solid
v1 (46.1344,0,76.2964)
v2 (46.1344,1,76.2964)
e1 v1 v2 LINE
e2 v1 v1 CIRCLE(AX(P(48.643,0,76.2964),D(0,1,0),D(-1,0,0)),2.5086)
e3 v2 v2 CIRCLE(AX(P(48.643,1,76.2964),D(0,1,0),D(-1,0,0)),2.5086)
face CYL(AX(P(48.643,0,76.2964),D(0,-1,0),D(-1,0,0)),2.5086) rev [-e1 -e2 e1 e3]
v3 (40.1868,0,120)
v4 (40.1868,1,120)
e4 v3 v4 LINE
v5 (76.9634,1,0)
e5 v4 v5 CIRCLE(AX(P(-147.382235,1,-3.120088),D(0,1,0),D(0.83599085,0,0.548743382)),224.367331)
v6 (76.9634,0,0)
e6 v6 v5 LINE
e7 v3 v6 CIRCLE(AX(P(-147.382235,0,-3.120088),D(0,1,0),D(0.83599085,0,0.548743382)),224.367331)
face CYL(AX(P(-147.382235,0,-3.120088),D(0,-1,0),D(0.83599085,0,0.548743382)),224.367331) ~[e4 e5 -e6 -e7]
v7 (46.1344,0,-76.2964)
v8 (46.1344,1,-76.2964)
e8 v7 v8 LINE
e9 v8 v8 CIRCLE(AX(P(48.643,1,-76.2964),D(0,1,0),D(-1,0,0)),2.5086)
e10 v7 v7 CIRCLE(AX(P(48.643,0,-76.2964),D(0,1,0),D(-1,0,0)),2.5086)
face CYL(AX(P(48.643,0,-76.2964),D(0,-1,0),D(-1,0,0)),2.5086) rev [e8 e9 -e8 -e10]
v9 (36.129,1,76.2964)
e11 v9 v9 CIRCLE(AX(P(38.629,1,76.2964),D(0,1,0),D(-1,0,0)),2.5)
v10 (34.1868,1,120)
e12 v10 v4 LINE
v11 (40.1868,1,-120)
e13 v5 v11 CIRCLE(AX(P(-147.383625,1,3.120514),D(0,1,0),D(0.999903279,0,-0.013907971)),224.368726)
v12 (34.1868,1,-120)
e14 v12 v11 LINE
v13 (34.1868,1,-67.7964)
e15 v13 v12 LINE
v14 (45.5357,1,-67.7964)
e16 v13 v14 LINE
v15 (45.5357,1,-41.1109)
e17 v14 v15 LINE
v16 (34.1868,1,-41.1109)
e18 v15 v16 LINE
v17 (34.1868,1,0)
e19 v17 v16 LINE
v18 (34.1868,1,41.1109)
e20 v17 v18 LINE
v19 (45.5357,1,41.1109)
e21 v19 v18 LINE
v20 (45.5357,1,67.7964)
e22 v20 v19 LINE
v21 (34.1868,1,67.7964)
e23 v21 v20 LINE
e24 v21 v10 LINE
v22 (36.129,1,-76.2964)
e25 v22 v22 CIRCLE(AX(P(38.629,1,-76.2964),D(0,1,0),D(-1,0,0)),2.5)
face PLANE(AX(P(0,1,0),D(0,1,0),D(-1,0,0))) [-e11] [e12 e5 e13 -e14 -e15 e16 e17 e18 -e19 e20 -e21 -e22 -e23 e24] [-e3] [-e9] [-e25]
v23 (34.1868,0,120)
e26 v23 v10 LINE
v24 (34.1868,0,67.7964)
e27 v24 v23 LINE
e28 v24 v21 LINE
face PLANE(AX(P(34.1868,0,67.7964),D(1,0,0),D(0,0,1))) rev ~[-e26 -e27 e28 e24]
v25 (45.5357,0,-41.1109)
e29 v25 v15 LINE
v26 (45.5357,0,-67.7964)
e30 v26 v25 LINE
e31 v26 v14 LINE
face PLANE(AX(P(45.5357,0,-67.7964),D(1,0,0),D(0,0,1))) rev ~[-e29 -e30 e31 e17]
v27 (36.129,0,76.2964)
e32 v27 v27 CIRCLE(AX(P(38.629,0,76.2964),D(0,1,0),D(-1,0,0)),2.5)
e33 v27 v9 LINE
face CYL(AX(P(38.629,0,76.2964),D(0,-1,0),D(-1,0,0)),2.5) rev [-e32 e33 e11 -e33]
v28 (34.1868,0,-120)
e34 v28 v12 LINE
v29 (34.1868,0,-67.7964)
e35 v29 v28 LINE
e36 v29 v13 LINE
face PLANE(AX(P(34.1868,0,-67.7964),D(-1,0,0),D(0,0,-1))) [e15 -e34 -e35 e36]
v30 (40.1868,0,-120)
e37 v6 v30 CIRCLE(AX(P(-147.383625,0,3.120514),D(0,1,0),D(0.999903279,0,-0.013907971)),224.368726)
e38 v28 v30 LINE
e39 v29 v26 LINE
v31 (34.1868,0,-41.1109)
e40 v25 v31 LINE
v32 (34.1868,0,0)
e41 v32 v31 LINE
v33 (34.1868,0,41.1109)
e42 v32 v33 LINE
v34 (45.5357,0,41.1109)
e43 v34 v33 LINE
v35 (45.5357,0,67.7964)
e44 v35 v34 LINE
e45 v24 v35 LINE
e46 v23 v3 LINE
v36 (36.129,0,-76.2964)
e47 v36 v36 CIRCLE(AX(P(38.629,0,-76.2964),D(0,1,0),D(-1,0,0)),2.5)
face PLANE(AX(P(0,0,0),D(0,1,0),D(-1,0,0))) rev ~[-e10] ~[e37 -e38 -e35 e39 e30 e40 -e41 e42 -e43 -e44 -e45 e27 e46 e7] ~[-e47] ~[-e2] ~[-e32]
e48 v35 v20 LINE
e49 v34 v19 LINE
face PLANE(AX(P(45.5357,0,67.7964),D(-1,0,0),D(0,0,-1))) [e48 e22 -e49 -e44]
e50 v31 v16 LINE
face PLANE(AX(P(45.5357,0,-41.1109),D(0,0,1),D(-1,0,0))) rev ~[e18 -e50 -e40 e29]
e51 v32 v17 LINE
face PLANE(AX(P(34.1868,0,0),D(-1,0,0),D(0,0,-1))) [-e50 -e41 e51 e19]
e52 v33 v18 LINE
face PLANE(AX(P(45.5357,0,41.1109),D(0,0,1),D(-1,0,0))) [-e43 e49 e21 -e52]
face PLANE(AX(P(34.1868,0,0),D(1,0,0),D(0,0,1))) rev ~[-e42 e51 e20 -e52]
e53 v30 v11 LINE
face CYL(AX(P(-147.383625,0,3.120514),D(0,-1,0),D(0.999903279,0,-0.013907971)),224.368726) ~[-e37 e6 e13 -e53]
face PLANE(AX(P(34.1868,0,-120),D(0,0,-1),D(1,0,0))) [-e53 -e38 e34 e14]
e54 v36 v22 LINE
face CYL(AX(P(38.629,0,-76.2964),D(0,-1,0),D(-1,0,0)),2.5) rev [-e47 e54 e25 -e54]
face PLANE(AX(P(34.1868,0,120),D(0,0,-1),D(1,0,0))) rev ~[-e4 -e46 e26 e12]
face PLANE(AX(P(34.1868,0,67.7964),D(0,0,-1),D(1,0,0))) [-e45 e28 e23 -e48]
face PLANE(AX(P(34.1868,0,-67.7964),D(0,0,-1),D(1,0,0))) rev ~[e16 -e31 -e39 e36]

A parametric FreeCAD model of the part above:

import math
import FreeCAD as App
import Part
import Sketcher
from FreeCAD import Vector

doc = App.newDocument("Part")
body = doc.addObject("PartDesign::Body", "Body")

sketch1 = body.newObject("Sketcher::SketchObject", "Sketch")
sketch1.AttachmentSupport = (doc.getObject("XZ_Plane"), [""])
sketch1.MapMode = "FlatFace"
sketch1.addGeometry(Part.LineSegment(Vector(40.2, -120, 0), Vector(34.2, -120, 0)), False)
sketch1.addGeometry(Part.LineSegment(Vector(34.2, -120, 0), Vector(34.2, -67.8, 0)), False)
sketch1.addGeometry(Part.LineSegment(Vector(34.2, -67.8, 0), Vector(45.5, -67.8, 0)), False)
sketch1.addGeometry(Part.LineSegment(Vector(45.5, -67.8, 0), Vector(45.5, -41.1, 0)), False)
sketch1.addGeometry(Part.LineSegment(Vector(45.5, -41.1, 0), Vector(34.2, -41.1, 0)), False)
sketch1.addGeometry(Part.LineSegment(Vector(34.2, -41.1, 0), Vector(34.2, 41.1, 0)), False)
sketch1.addGeometry(Part.LineSegment(Vector(34.2, 41.1, 0), Vector(45.5, 41.1, 0)), False)
sketch1.addGeometry(Part.LineSegment(Vector(45.5, 41.1, 0), Vector(45.5, 67.8, 0)), False)
sketch1.addGeometry(Part.LineSegment(Vector(45.5, 67.8, 0), Vector(34.2, 67.8, 0)), False)
sketch1.addGeometry(Part.LineSegment(Vector(34.2, 67.8, 0), Vector(34.2, 120, 0)), False)
sketch1.addGeometry(Part.LineSegment(Vector(34.2, 120, 0), Vector(40.2, 120, 0)), False)
sketch1.addGeometry(Part.ArcOfCircle(Part.Circle(Vector(-147.4, -3.1, 0), Vector(0, 0, 1), 224.4), math.radians(1), math.radians(33)), False)
sketch1.addGeometry(Part.ArcOfCircle(Part.Circle(Vector(-147.4, 3.1, 0), Vector(0, 0, 1), 224.4), math.radians(-33), math.radians(-1)), False)
sketch1.addGeometry(Part.Circle(Vector(48.6, -76.3, 0), Vector(0, 0, 1), 2.5), False)
sketch1.addGeometry(Part.Circle(Vector(38.6, -76.3, 0), Vector(0, 0, 1), 2.5), False)
sketch1.addGeometry(Part.Circle(Vector(48.6, 76.3, 0), Vector(0, 0, 1), 2.5), False)
sketch1.addGeometry(Part.Circle(Vector(38.6, 76.3, 0), Vector(0, 0, 1), 2.5), False)
sketch1.addConstraint(Sketcher.Constraint("Coincident", 0, 2, 1, 1))
sketch1.addConstraint(Sketcher.Constraint("Coincident", 1, 2, 2, 1))
sketch1.addConstraint(Sketcher.Constraint("Coincident", 2, 2, 3, 1))
sketch1.addConstraint(Sketcher.Constraint("Coincident", 3, 2, 4, 1))
sketch1.addConstraint(Sketcher.Constraint("Coincident", 4, 2, 5, 1))
sketch1.addConstraint(Sketcher.Constraint("Coincident", 5, 2, 6, 1))
sketch1.addConstraint(Sketcher.Constraint("Coincident", 6, 2, 7, 1))
sketch1.addConstraint(Sketcher.Constraint("Coincident", 7, 2, 8, 1))
sketch1.addConstraint(Sketcher.Constraint("Coincident", 8, 2, 9, 1))
sketch1.addConstraint(Sketcher.Constraint("Coincident", 9, 2, 10, 1))
sketch1.addConstraint(Sketcher.Constraint("Coincident", 10, 2, 11, 2))
sketch1.addConstraint(Sketcher.Constraint("Coincident", 11, 1, 12, 2))
sketch1.addConstraint(Sketcher.Constraint("Coincident", 12, 1, 0, 1))
sketch1.addConstraint(Sketcher.Constraint("Horizontal", 0))
sketch1.addConstraint(Sketcher.Constraint("Vertical", 1))
sketch1.addConstraint(Sketcher.Constraint("Horizontal", 2))
sketch1.addConstraint(Sketcher.Constraint("Vertical", 3))
sketch1.addConstraint(Sketcher.Constraint("Horizontal", 4))
sketch1.addConstraint(Sketcher.Constraint("Vertical", 5))
sketch1.addConstraint(Sketcher.Constraint("Horizontal", 6))
sketch1.addConstraint(Sketcher.Constraint("Vertical", 7))
sketch1.addConstraint(Sketcher.Constraint("Horizontal", 8))
sketch1.addConstraint(Sketcher.Constraint("Vertical", 9))
sketch1.addConstraint(Sketcher.Constraint("Horizontal", 10))
sketch1.addConstraint(Sketcher.Constraint("Equal", 11, 12))
sketch1.addConstraint(Sketcher.Constraint("Equal", 13, 15))
sketch1.addConstraint(Sketcher.Constraint("Equal", 14, 16))
sketch1.addConstraint(Sketcher.Constraint("Symmetric", 11, 3, 12, 3, -1))
sketch1.addConstraint(Sketcher.Constraint("Symmetric", 13, 3, 15, 3, -1))
sketch1.addConstraint(Sketcher.Constraint("Symmetric", 14, 3, 16, 3, -1))
sketch1.addConstraint(Sketcher.Constraint("Symmetric", 3, 2, 6, 2, -1))
sketch1.addConstraint(Sketcher.Constraint("Symmetric", 1, 2, 8, 2, -1))
sketch1.addConstraint(Sketcher.Constraint("Horizontal", 13, 3, 14, 3))
sketch1.addConstraint(Sketcher.Constraint("Vertical", 1, 2, 4, 2))
sketch1.addConstraint(Sketcher.Constraint("Vertical", 10, 2, 12, 1))
sketch1.addConstraint(Sketcher.Constraint("DistanceX", 0, 2, 0, 1, 6.0))
sketch1.addConstraint(Sketcher.Constraint("Diameter", 14, 5.0))
sketch1.addConstraint(Sketcher.Constraint("DistanceY", 0, 2, -1, 1, 120.0))
sketch1.addConstraint(Sketcher.Constraint("Radius", 11, 224.368))
sketch1.addConstraint(Sketcher.Constraint("Diameter", 13, 5.0172))
sketch1.addConstraint(Sketcher.Constraint("DistanceY", 14, 3, 1, 2, 8.5))
sketch1.addConstraint(Sketcher.Constraint("DistanceX", 2, 1, 2, 2, 11.349))
sketch1.addConstraint(Sketcher.Constraint("DistanceY", 1, 1, 1, 2, 52.2036))
sketch1.addConstraint(Sketcher.Constraint("DistanceY", 3, 1, 3, 2, 26.6855))
sketch1.addConstraint(Sketcher.Constraint("DistanceX", 11, 3, -1, 1, 147.383))
sketch1.addConstraint(Sketcher.Constraint("DistanceX", -1, 1, 13, 3, 48.643))
sketch1.addConstraint(Sketcher.Constraint("DistanceX", -1, 1, 14, 3, 38.629))
sketch1.addConstraint(Sketcher.Constraint("DistanceY", 13, 3, 11, 3, 73.176))
pad1 = body.newObject("PartDesign::Pad", "Pad")
pad1.Profile = sketch1
pad1.Length = 1
pad1.Reversed = True

doc.recompute()
